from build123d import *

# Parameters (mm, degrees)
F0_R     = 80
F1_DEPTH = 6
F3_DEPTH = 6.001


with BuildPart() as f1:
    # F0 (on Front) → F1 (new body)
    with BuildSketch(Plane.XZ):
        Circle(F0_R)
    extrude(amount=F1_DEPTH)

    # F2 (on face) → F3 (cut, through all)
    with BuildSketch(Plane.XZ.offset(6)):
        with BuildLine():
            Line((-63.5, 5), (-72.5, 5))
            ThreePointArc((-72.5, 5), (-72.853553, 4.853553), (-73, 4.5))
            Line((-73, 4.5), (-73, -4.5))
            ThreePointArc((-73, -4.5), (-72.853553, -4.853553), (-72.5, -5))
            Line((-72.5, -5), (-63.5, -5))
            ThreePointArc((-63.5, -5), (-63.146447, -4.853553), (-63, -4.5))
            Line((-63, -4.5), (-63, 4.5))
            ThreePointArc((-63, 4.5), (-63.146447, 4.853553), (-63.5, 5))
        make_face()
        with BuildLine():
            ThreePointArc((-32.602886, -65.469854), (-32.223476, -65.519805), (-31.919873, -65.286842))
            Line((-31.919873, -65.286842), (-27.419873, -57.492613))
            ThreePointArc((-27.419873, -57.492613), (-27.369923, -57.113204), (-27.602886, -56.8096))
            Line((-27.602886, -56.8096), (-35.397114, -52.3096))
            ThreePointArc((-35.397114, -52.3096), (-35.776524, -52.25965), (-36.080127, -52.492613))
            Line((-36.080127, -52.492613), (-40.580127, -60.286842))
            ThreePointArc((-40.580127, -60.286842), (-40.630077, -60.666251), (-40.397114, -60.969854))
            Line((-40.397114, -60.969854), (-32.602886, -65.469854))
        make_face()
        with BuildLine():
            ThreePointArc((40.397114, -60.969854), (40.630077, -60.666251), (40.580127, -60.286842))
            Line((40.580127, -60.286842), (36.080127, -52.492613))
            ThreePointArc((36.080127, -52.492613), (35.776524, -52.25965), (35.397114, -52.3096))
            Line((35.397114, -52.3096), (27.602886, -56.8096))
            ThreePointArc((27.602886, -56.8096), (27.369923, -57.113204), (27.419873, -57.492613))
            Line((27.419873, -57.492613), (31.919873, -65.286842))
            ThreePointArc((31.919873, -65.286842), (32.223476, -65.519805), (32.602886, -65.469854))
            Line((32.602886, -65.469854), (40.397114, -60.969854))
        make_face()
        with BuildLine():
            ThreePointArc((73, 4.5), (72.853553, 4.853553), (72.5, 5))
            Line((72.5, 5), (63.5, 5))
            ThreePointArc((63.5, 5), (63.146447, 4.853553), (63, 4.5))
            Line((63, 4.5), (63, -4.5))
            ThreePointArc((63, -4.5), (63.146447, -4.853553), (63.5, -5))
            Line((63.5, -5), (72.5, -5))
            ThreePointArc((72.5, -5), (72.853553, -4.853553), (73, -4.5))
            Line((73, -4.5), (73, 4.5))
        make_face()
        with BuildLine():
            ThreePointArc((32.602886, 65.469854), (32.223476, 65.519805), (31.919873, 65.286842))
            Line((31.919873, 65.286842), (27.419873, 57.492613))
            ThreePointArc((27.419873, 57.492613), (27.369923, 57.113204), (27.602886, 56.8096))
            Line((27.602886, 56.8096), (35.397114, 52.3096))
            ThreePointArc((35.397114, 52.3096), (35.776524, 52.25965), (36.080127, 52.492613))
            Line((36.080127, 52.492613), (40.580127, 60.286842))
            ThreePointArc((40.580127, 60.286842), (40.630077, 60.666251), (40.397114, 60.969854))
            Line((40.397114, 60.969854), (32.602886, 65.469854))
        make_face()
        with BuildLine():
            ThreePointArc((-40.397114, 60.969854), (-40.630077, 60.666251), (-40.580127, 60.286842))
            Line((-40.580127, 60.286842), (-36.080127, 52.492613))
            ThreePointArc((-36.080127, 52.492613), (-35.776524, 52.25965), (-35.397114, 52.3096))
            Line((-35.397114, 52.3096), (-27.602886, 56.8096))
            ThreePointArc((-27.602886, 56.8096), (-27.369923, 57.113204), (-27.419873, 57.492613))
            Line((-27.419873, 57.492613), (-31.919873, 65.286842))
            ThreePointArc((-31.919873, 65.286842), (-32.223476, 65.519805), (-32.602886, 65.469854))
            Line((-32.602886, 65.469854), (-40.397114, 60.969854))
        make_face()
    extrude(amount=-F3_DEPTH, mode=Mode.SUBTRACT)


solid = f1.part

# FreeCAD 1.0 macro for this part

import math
import FreeCAD as App
import Part
import Sketcher

V = App.Vector
Q = App.Units.Quantity

doc = App.newDocument("Part")
params = doc.addObject("Spreadsheet::Sheet", "Params")
for row, (alias, value) in enumerate([
    ("sketch1_diameter", "160 mm"),
    ("pad1_length", "6 mm"),
    ("sketch2_radius", "0.500001 mm"),
    ("sketch2_width", "9 mm"),
    ("sketch2_length", "9 mm"),
], start=1):
    params.set(f"A{row}", alias)
    params.set(f"B{row}", "=" + value)
    params.setAlias(f"B{row}", alias)

body = doc.addObject("PartDesign::Body", "Body")

# Sketch on XZ plane
sketch1 = body.newObject("Sketcher::SketchObject", "Sketch")
sketch1.AttachmentSupport = (doc.getObject("XZ_Plane"), [""])
sketch1.MapMode = "FlatFace"
sketch1.addGeometry(Part.Circle(V(0, 0, 0), V(0, 0, 1), 80), False)
sketch1.addConstraint([
    Sketcher.Constraint("Coincident", 0, 3, -1, 1),
    Sketcher.Constraint("Diameter", 0, Q("160 mm")),
])
sketch1.setExpression("Constraints[1]", "Params.sketch1_diameter")
pad1 = body.newObject("PartDesign::Pad", "Pad")
pad1.Profile = sketch1
pad1.setExpression("Length", "Params.pad1_length")

# Sketch on XZ plane
sketch2 = body.newObject("Sketcher::SketchObject", "Sketch001")
sketch2.AttachmentSupport = (doc.getObject("XZ_Plane"), [""])
sketch2.MapMode = "FlatFace"
sketch2.AttachmentOffset = App.Placement(V(0, 0, 6), App.Rotation())
sketch2.addGeometry([
    Part.LineSegment(V(-63.5, 5, 0), V(-72.5, 5, 0)),  # 0
    Part.ArcOfCircle(Part.Circle(V(-72.5, 4.5, 0), V(0, 0, 1), 0.5), math.radians(90), math.radians(180)),  # 1
    Part.LineSegment(V(-73, 4.5, 0), V(-73, -4.5, 0)),  # 2
    Part.ArcOfCircle(Part.Circle(V(-72.5, -4.5, 0), V(0, 0, 1), 0.5), math.radians(-180), math.radians(-90)),  # 3
    Part.LineSegment(V(-72.5, -5, 0), V(-63.5, -5, 0)),  # 4
    Part.ArcOfCircle(Part.Circle(V(-63.5, -4.5, 0), V(0, 0, 1), 0.5), math.radians(-90), math.radians(0)),  # 5
    Part.LineSegment(V(-63, -4.5, 0), V(-63, 4.5, 0)),  # 6
    Part.ArcOfCircle(Part.Circle(V(-63.5, 4.5, 0), V(0, 0, 1), 0.5), math.radians(0), math.radians(90)),  # 7
    Part.ArcOfCircle(Part.Circle(V(-32.35, -65.04, 0), V(0, 0, 1), 0.5), math.radians(-120), math.radians(-30)),  # 8
    Part.LineSegment(V(-31.92, -65.29, 0), V(-27.42, -57.49, 0)),  # 9
    Part.ArcOfCircle(Part.Circle(V(-27.85, -57.24, 0), V(0, 0, 1), 0.5), math.radians(-30), math.radians(60)),  # 10
    Part.LineSegment(V(-27.6, -56.81, 0), V(-35.4, -52.31, 0)),  # 11
    Part.ArcOfCircle(Part.Circle(V(-35.65, -52.74, 0), V(0, 0, 1), 0.5), math.radians(60), math.radians(150)),  # 12
    Part.LineSegment(V(-36.08, -52.49, 0), V(-40.58, -60.29, 0)),  # 13
    Part.ArcOfCircle(Part.Circle(V(-40.15, -60.54, 0), V(0, 0, 1), 0.5), math.radians(150), math.radians(240)),  # 14
    Part.LineSegment(V(-40.4, -60.97, 0), V(-32.6, -65.47, 0)),  # 15
    Part.ArcOfCircle(Part.Circle(V(40.15, -60.54, 0), V(0, 0, 1), 0.5), math.radians(-60), math.radians(30)),  # 16
    Part.LineSegment(V(40.58, -60.29, 0), V(36.08, -52.49, 0)),  # 17
    Part.ArcOfCircle(Part.Circle(V(35.65, -52.74, 0), V(0, 0, 1), 0.5), math.radians(30), math.radians(120)),  # 18
    Part.LineSegment(V(35.4, -52.31, 0), V(27.6, -56.81, 0)),  # 19
    Part.ArcOfCircle(Part.Circle(V(27.85, -57.24, 0), V(0, 0, 1), 0.5), math.radians(120), math.radians(210)),  # 20
    Part.LineSegment(V(27.42, -57.49, 0), V(31.92, -65.29, 0)),  # 21
    Part.ArcOfCircle(Part.Circle(V(32.35, -65.04, 0), V(0, 0, 1), 0.5), math.radians(-150), math.radians(-60)),  # 22
    Part.LineSegment(V(32.6, -65.47, 0), V(40.4, -60.97, 0)),  # 23
    Part.ArcOfCircle(Part.Circle(V(72.5, 4.5, 0), V(0, 0, 1), 0.5), math.radians(0), math.radians(90)),  # 24
    Part.LineSegment(V(72.5, 5, 0), V(63.5, 5, 0)),  # 25
    Part.ArcOfCircle(Part.Circle(V(63.5, 4.5, 0), V(0, 0, 1), 0.5), math.radians(90), math.radians(180)),  # 26
    Part.LineSegment(V(63, 4.5, 0), V(63, -4.5, 0)),  # 27
    Part.ArcOfCircle(Part.Circle(V(63.5, -4.5, 0), V(0, 0, 1), 0.5), math.radians(-180), math.radians(-90)),  # 28
    Part.LineSegment(V(63.5, -5, 0), V(72.5, -5, 0)),  # 29
    Part.ArcOfCircle(Part.Circle(V(72.5, -4.5, 0), V(0, 0, 1), 0.5), math.radians(-90), math.radians(0)),  # 30
    Part.LineSegment(V(73, -4.5, 0), V(73, 4.5, 0)),  # 31
    Part.ArcOfCircle(Part.Circle(V(32.35, 65.04, 0), V(0, 0, 1), 0.5), math.radians(60), math.radians(150)),  # 32
    Part.LineSegment(V(31.92, 65.29, 0), V(27.42, 57.49, 0)),  # 33
    Part.ArcOfCircle(Part.Circle(V(27.85, 57.24, 0), V(0, 0, 1), 0.5), math.radians(150), math.radians(240)),  # 34
    Part.LineSegment(V(27.6, 56.81, 0), V(35.4, 52.31, 0)),  # 35
    Part.ArcOfCircle(Part.Circle(V(35.65, 52.74, 0), V(0, 0, 1), 0.5), math.radians(-120), math.radians(-30)),  # 36
    Part.LineSegment(V(36.08, 52.49, 0), V(40.58, 60.29, 0)),  # 37
    Part.ArcOfCircle(Part.Circle(V(40.15, 60.54, 0), V(0, 0, 1), 0.5), math.radians(-30), math.radians(60)),  # 38
    Part.LineSegment(V(40.4, 60.97, 0), V(32.6, 65.47, 0)),  # 39
    Part.ArcOfCircle(Part.Circle(V(-40.15, 60.54, 0), V(0, 0, 1), 0.5), math.radians(120), math.radians(210)),  # 40
    Part.LineSegment(V(-40.58, 60.29, 0), V(-36.08, 52.49, 0)),  # 41
    Part.ArcOfCircle(Part.Circle(V(-35.65, 52.74, 0), V(0, 0, 1), 0.5), math.radians(-150), math.radians(-60)),  # 42
    Part.LineSegment(V(-35.4, 52.31, 0), V(-27.6, 56.81, 0)),  # 43
    Part.ArcOfCircle(Part.Circle(V(-27.85, 57.24, 0), V(0, 0, 1), 0.5), math.radians(-60), math.radians(30)),  # 44
    Part.LineSegment(V(-27.42, 57.49, 0), V(-31.92, 65.29, 0)),  # 45
    Part.ArcOfCircle(Part.Circle(V(-32.35, 65.04, 0), V(0, 0, 1), 0.5), math.radians(30), math.radians(120)),  # 46
    Part.LineSegment(V(-32.6, 65.47, 0), V(-40.4, 60.97, 0)),  # 47
], False)
sketch2.addConstraint([
    Sketcher.Constraint("Coincident", 0, 2, 1, 1),
    Sketcher.Constraint("Coincident", 1, 2, 2, 1),
    Sketcher.Constraint("Coincident", 2, 2, 3, 1),
    Sketcher.Constraint("Coincident", 3, 2, 4, 1),
    Sketcher.Constraint("Coincident", 4, 2, 5, 1),
    Sketcher.Constraint("Coincident", 5, 2, 6, 1),
    Sketcher.Constraint("Coincident", 6, 2, 7, 1),
    Sketcher.Constraint("Coincident", 7, 2, 0, 1),
    Sketcher.Constraint("Tangent", 8, 2, 9, 1),
    Sketcher.Constraint("Tangent", 9, 2, 10, 1),
    Sketcher.Constraint("Tangent", 10, 2, 11, 1),
    Sketcher.Constraint("Tangent", 11, 2, 12, 1),
    Sketcher.Constraint("Tangent", 12, 2, 13, 1),
    Sketcher.Constraint("Tangent", 13, 2, 14, 1),
    Sketcher.Constraint("Tangent", 14, 2, 15, 1),
    Sketcher.Constraint("Coincident", 15, 2, 8, 1),
    Sketcher.Constraint("Tangent", 16, 2, 17, 1),
    Sketcher.Constraint("Tangent", 17, 2, 18, 1),
    Sketcher.Constraint("Tangent", 18, 2, 19, 1),
    Sketcher.Constraint("Tangent", 19, 2, 20, 1),
    Sketcher.Constraint("Tangent", 20, 2, 21, 1),
    Sketcher.Constraint("Tangent", 21, 2, 22, 1),
    Sketcher.Constraint("Coincident", 22, 2, 23, 1),
    Sketcher.Constraint("Tangent", 23, 2, 16, 1),
    Sketcher.Constraint("Coincident", 24, 2, 25, 1),
    Sketcher.Constraint("Coincident", 25, 2, 26, 1),
    Sketcher.Constraint("Coincident", 26, 2, 27, 1),
    Sketcher.Constraint("Coincident", 27, 2, 28, 1),
    Sketcher.Constraint("Coincident", 28, 2, 29, 1),
    Sketcher.Constraint("Coincident", 29, 2, 30, 1),
    Sketcher.Constraint("Coincident", 30, 2, 31, 1),
    Sketcher.Constraint("Coincident", 31, 2, 24, 1),
    Sketcher.Constraint("Tangent", 32, 2, 33, 1),
    Sketcher.Constraint("Tangent", 33, 2, 34, 1),
    Sketcher.Constraint("Tangent", 34, 2, 35, 1),
    Sketcher.Constraint("Tangent", 35, 2, 36, 1),
    Sketcher.Constraint("Tangent", 36, 2, 37, 1),
    Sketcher.Constraint("Tangent", 37, 2, 38, 1),
    Sketcher.Constraint("Tangent", 38, 2, 39, 1),
    Sketcher.Constraint("Coincident", 39, 2, 32, 1),
    Sketcher.Constraint("Tangent", 40, 2, 41, 1),
    Sketcher.Constraint("Tangent", 41, 2, 42, 1),
    Sketcher.Constraint("Tangent", 42, 2, 43, 1),
    Sketcher.Constraint("Tangent", 43, 2, 44, 1),
    Sketcher.Constraint("Tangent", 44, 2, 45, 1),
    Sketcher.Constraint("Tangent", 45, 2, 46, 1),
    Sketcher.Constraint("Coincident", 46, 2, 47, 1),
    Sketcher.Constraint("Tangent", 47, 2, 40, 1),
    Sketcher.Constraint("Horizontal", 0),
    Sketcher.Constraint("Vertical", 2),
    Sketcher.Constraint("Horizontal", 4),
    Sketcher.Constraint("Vertical", 6),
    Sketcher.Constraint("Horizontal", 25),
    Sketcher.Constraint("Vertical", 27),
    Sketcher.Constraint("Horizontal", 29),
    Sketcher.Constraint("Vertical", 31),
    Sketcher.Constraint("Equal", 1, 3),
    Sketcher.Constraint("Equal", 3, 5),
    Sketcher.Constraint("Equal", 5, 7),
    Sketcher.Constraint("Equal", 7, 10),
    Sketcher.Constraint("Equal", 10, 12),
    Sketcher.Constraint("Equal", 12, 14),
    Sketcher.Constraint("Equal", 14, 16),
    Sketcher.Constraint("Equal", 16, 18),
    Sketcher.Constraint("Equal", 18, 20),
    Sketcher.Constraint("Equal", 18, 22),
    Sketcher.Constraint("Equal", 20, 24),
    Sketcher.Constraint("Equal", 24, 26),
    Sketcher.Constraint("Equal", 26, 28),
    Sketcher.Constraint("Equal", 28, 30),
    Sketcher.Constraint("Equal", 22, 32),
    Sketcher.Constraint("Equal", 30, 34),
    Sketcher.Constraint("Equal", 34, 36),
    Sketcher.Constraint("Equal", 36, 38),
    Sketcher.Constraint("Equal", 38, 40),
    Sketcher.Constraint("Equal", 40, 42),
    Sketcher.Constraint("Equal", 42, 44),
    Sketcher.Constraint("Equal", 42, 46),
    Sketcher.Constraint("Symmetric", 3, 3, 24, 3, -1, 1),
    Sketcher.Constraint("Symmetric", 7, 3, 28, 3, -1, 1),
    Sketcher.Constraint("Symmetric", 8, 3, 32, 3, -1, 1),
    Sketcher.Constraint("Symmetric", 10, 3, 34, 3, -1, 1),
    Sketcher.Constraint("Symmetric", 12, 3, 36, 3, -1, 1),
    Sketcher.Constraint("Symmetric", 14, 3, 38, 3, -1, 1),
    Sketcher.Constraint("Symmetric", 16, 3, 40, 3, -1, 1),
    Sketcher.Constraint("Symmetric", 18, 3, 42, 3, -1, 1),
    Sketcher.Constraint("Symmetric", 20, 3, 44, 3, -1, 1),
    Sketcher.Constraint("Symmetric", 22, 3, 46, 3, -1, 1),
    Sketcher.Constraint("Symmetric", 15, 2, 39, 2, -1, 1),
    Sketcher.Constraint("Symmetric", 14, 3, 16, 3, -2),
    Sketcher.Constraint("Symmetric", 12, 3, 18, 3, -2),
    Sketcher.Constraint("Symmetric", 10, 3, 20, 3, -2),
    Sketcher.Constraint("Symmetric", 8, 3, 22, 3, -2),
    Sketcher.Constraint("Symmetric", 0, 2, 24, 2, -2),
    Sketcher.Constraint("Perpendicular", 9, 11),
    Sketcher.Constraint("Perpendicular", 11, 13),
    Sketcher.Constraint("Perpendicular", 13, 15),
    Sketcher.Constraint("Horizontal", 26, 3, 1, 2),
    Sketcher.Constraint("Horizontal", 30, 3, 2, 2),
    Sketcher.Constraint("Horizontal", 2, 2, 5, 2),
    Sketcher.Constraint("Horizontal", 1, 2, 6, 2),
    Sketcher.Constraint("Horizontal", 15, 2, 22, 2),
    Sketcher.Constraint("Horizontal", 6, 2, 26, 2),
    Sketcher.Constraint("Horizontal", 5, 2, 27, 2),
    Sketcher.Constraint("Horizontal", 27, 2, 30, 2),
    Sketcher.Constraint("Horizontal", 26, 2, 31, 2),
    Sketcher.Constraint("Horizontal", 39, 2, 46, 2),
    Sketcher.Constraint("Vertical", 3, 3, 0, 2),
    Sketcher.Constraint("Vertical", 0, 2, 3, 2),
    Sketcher.Constraint("Vertical", 7, 3, 4, 2),
    Sketcher.Constraint("Vertical", 4, 2, 7, 2),
    Sketcher.Constraint("Vertical", 28, 3, 25, 2),
    Sketcher.Constraint("Vertical", 25, 2, 28, 2),
    Sketcher.Constraint("Vertical", 24, 2, 29, 2),
    Sketcher.Constraint("Equal", 29, 2),
    Sketcher.Constraint("Equal", 9, 11),
    Sketcher.Constraint("Equal", 13, 15),
    Sketcher.Constraint("Radius", 1, Q("0.500001 mm")),
    Sketcher.Constraint("DistanceX", 0, 2, 0, 1, Q("9 mm")),
    Sketcher.Constraint("Angle", 9, Q("60.000001 deg")),
    Sketcher.Constraint("Distance", 9, Q("9 mm")),
    Sketcher.Constraint("DistanceX", 1, 2, -1, 1, Q("73 mm")),
    Sketcher.Constraint("DistanceY", 10, 2, -1, 1, Q("56.8096 mm")),
    Sketcher.Constraint("DistanceX", 8, 3, -1, 1, Q("32.352885 mm")),
])
sketch2.setExpression("Constraints[117]", "Params.sketch2_radius")
sketch2.setExpression("Constraints[118]", "Params.sketch2_width")
sketch2.setExpression("Constraints[120]", "Params.sketch2_length")
pocket1 = body.newObject("PartDesign::Pocket", "Pocket")
pocket1.Profile = sketch2
pocket1.Type = "ThroughAll"

doc.recompute()
